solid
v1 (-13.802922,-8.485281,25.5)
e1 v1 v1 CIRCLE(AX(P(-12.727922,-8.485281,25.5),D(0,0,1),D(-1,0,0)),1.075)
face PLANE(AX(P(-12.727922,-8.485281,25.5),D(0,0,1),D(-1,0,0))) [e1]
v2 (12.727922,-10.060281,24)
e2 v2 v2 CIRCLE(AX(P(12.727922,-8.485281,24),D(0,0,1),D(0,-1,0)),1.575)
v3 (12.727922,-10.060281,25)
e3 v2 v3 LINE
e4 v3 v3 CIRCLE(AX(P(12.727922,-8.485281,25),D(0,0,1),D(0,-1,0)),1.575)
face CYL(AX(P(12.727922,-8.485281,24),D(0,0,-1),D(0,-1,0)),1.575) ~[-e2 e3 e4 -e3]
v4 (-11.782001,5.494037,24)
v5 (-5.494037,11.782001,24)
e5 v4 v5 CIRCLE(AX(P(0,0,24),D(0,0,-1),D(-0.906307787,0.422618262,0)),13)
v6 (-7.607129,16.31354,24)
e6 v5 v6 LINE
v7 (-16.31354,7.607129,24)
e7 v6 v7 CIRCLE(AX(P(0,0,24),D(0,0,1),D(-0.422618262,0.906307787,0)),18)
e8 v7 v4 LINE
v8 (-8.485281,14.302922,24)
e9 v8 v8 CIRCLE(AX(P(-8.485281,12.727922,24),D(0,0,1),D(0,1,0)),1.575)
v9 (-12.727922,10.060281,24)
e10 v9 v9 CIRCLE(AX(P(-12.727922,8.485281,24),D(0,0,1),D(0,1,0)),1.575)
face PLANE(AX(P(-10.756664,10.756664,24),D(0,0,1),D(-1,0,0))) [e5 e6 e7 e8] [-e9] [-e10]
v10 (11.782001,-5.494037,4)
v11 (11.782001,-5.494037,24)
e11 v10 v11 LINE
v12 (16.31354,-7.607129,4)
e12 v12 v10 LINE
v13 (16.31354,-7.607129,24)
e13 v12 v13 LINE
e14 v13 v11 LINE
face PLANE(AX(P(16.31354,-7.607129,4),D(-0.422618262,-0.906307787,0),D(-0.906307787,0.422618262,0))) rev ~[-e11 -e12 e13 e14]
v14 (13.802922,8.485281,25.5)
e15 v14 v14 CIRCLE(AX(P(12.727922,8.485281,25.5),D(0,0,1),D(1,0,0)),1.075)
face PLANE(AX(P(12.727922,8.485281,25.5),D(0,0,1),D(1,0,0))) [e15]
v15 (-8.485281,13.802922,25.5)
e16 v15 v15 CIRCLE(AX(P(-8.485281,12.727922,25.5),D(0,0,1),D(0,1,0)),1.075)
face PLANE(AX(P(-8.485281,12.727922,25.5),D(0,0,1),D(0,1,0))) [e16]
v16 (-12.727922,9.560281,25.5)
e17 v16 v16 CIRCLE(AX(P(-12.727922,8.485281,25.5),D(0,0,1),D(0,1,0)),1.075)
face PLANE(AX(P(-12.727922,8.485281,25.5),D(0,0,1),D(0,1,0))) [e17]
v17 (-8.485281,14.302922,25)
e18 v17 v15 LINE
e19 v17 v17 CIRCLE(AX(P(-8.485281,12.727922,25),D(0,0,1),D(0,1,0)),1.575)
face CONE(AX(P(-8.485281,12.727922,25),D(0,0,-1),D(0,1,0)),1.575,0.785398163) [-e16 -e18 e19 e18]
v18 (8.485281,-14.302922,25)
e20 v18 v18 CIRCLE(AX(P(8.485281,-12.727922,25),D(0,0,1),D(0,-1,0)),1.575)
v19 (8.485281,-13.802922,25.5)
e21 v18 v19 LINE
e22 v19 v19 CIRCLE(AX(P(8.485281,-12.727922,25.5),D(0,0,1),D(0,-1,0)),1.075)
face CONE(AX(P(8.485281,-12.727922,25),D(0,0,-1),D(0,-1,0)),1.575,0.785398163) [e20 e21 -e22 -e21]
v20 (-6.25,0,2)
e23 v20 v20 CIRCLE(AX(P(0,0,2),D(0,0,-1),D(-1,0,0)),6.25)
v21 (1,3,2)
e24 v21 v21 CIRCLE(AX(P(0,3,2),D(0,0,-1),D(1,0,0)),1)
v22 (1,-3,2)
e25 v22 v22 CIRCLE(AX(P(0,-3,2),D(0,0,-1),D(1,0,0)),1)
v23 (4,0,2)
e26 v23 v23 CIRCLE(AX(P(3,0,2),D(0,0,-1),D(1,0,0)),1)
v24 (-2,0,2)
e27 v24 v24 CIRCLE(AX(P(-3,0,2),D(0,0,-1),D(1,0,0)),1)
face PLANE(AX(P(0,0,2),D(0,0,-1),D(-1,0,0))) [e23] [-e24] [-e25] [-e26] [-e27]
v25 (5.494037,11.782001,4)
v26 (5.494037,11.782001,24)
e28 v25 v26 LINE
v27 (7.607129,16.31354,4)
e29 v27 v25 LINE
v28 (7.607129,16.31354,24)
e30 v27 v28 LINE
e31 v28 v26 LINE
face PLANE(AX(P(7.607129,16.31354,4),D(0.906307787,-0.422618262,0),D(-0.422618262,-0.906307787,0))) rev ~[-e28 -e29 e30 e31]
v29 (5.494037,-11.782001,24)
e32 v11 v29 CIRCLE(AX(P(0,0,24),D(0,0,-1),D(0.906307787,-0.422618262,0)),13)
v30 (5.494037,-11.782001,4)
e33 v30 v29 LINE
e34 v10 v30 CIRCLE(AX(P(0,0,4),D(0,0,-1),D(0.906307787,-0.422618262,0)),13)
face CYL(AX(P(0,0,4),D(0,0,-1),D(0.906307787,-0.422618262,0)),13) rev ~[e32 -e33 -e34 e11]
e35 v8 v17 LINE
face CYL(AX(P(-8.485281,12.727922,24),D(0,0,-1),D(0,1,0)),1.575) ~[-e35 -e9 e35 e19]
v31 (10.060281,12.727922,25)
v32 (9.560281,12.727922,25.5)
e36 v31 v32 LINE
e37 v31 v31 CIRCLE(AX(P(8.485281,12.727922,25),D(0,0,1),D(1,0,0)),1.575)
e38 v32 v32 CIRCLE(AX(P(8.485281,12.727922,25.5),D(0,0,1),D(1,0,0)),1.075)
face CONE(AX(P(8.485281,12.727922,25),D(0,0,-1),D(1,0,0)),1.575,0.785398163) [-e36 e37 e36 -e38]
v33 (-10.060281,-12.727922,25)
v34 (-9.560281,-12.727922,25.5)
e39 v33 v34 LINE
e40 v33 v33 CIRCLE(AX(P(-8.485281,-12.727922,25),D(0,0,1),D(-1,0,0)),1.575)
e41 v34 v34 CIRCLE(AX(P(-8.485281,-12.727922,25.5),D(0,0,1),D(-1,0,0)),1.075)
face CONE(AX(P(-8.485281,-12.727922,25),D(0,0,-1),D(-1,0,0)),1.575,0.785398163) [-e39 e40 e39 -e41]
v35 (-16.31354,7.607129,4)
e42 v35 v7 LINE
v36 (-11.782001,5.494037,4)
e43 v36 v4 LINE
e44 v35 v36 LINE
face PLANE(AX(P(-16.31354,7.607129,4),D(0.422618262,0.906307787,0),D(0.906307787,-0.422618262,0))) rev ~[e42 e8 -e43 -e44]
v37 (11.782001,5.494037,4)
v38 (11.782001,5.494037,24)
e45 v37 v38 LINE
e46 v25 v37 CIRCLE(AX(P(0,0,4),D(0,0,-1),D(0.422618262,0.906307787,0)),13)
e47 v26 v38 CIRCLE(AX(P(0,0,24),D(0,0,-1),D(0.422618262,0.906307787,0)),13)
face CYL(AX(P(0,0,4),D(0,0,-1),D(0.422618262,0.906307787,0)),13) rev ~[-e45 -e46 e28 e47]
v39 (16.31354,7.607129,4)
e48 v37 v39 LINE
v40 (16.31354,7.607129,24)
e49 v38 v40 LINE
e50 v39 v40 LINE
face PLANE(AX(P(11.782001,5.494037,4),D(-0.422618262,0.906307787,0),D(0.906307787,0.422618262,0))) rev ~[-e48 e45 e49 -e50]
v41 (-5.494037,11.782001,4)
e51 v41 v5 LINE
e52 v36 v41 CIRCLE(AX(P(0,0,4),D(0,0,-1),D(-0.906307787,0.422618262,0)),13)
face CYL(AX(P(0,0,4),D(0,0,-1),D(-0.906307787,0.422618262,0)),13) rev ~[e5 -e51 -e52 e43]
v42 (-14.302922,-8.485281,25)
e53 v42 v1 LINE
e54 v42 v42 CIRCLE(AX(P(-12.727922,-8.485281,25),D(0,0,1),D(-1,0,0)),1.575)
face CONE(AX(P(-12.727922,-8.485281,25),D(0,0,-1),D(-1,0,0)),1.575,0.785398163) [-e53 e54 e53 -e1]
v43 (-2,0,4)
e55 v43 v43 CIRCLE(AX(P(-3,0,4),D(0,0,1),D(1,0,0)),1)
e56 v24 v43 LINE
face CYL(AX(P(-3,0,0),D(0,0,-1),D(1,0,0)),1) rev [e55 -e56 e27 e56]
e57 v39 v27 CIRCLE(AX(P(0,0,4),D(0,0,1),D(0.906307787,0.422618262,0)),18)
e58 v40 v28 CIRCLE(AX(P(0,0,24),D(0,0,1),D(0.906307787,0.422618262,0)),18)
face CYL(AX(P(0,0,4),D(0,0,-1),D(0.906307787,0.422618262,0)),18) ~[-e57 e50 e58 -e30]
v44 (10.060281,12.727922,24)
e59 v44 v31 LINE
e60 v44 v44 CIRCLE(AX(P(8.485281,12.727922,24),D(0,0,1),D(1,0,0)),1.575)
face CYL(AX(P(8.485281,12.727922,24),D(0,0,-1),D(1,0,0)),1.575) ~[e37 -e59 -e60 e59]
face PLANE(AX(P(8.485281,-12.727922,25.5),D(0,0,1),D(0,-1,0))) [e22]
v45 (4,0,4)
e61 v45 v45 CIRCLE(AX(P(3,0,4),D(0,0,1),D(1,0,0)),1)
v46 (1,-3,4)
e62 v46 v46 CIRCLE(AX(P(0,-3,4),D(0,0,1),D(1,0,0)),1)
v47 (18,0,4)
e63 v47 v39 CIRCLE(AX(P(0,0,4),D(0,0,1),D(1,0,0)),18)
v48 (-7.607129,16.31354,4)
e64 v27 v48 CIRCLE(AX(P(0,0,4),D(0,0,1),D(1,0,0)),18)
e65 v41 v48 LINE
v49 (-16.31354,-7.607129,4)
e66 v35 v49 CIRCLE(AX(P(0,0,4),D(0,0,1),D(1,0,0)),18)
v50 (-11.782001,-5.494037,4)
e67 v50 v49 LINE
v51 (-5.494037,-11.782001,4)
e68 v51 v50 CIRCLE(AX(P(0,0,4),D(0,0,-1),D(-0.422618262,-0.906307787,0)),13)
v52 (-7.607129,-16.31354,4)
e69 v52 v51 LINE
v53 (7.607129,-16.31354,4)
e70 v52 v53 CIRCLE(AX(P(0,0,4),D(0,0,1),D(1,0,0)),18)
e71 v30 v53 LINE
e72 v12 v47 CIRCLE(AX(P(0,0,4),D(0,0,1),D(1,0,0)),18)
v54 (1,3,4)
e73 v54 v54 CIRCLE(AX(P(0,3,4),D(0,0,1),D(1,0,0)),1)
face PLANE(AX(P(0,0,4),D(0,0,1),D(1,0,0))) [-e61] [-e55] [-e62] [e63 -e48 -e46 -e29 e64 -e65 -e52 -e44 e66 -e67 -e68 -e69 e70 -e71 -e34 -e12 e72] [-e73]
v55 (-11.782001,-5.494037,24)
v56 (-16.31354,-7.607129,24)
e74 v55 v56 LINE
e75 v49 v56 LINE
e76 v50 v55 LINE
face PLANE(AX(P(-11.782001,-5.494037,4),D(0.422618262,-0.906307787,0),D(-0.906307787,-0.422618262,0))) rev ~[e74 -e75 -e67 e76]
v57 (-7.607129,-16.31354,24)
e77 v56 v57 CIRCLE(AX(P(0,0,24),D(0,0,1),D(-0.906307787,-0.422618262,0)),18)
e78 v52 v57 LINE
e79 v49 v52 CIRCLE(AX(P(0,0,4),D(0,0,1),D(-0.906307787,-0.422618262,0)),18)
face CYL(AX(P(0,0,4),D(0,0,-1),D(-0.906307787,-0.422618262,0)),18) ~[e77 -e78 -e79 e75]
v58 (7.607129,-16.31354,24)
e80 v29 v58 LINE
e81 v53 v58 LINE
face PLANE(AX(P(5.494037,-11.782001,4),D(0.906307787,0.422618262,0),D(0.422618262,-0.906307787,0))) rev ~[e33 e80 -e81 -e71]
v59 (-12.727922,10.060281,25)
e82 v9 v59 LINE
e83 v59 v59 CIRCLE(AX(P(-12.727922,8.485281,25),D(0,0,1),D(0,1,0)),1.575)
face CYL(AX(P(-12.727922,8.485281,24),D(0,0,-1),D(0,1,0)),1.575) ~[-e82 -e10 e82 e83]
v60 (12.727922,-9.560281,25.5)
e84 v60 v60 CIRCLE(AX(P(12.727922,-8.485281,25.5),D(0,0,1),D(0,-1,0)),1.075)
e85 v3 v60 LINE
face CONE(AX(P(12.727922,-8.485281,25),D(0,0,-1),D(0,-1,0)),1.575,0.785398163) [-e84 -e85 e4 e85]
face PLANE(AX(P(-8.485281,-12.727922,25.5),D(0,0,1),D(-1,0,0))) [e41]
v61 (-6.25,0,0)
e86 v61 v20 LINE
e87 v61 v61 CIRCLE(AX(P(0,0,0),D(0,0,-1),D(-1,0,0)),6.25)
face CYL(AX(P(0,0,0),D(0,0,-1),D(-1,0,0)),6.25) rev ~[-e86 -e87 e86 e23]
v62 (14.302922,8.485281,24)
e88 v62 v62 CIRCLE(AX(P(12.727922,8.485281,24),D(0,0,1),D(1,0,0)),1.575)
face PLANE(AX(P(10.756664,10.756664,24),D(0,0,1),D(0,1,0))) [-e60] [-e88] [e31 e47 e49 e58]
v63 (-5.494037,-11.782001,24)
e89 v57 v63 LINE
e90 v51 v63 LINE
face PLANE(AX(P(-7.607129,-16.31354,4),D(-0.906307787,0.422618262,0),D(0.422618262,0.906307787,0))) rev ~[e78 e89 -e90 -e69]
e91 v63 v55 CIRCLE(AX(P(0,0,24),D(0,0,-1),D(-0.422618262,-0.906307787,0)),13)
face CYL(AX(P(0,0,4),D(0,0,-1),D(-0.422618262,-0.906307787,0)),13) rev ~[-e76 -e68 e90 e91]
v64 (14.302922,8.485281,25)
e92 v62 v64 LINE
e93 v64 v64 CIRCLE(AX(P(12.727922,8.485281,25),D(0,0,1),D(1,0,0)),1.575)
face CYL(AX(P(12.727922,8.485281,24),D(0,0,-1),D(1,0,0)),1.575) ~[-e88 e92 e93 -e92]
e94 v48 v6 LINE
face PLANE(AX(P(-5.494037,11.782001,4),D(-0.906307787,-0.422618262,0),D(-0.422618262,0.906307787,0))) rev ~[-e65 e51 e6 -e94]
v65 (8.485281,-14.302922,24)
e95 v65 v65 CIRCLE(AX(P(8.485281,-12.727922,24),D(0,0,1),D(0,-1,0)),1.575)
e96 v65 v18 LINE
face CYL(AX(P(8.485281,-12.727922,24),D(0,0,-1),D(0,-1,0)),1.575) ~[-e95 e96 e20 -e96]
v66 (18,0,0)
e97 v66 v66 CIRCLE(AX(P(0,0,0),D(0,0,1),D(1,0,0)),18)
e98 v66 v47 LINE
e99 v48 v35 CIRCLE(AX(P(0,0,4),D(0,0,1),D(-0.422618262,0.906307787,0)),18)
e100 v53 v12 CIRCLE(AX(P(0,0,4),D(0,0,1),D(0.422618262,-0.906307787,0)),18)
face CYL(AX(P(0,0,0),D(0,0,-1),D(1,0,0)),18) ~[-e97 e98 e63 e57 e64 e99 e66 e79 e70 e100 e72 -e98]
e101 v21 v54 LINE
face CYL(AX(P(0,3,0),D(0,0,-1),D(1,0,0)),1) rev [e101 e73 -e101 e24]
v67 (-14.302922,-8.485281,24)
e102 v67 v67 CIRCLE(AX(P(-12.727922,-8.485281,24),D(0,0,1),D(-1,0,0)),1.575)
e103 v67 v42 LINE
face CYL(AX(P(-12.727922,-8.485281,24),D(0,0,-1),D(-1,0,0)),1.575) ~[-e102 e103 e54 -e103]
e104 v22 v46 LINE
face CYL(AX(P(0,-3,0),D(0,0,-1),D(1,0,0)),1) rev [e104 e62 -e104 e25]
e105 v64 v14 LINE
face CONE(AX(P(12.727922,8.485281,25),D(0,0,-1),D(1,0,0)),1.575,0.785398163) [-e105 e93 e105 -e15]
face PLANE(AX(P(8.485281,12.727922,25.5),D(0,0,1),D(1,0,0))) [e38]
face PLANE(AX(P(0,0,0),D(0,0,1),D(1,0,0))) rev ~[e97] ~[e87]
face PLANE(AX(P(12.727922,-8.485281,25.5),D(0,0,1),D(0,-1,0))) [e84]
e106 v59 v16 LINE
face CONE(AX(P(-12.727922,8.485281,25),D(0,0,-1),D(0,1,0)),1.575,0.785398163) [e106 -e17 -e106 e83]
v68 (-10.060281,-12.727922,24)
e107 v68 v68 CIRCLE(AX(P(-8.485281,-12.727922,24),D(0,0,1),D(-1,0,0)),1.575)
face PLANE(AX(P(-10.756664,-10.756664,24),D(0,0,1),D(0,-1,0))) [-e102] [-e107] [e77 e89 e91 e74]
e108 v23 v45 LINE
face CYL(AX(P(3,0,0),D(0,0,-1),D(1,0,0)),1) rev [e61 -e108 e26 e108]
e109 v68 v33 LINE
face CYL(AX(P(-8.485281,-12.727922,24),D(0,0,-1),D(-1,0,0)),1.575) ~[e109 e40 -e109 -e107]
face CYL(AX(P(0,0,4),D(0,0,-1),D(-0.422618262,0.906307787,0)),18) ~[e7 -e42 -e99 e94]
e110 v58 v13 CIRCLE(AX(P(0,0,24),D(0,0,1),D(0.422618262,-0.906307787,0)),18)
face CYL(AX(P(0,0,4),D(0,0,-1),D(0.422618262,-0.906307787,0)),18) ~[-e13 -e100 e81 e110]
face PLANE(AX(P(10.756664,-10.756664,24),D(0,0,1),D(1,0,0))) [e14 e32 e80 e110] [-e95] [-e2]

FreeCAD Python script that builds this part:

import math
import FreeCAD as App
import Part
import Sketcher
from FreeCAD import Vector
Q = App.Units.Quantity


def edges_at(feature, points):
    """Names of the edges that pass closest to the given points."""
    edges = feature.Shape.Edges
    near = lambda p: min(range(len(edges)), key=lambda i: edges[i].distToShape(Part.Vertex(*p))[0])
    return sorted({f"Edge{near(p) + 1}" for p in points})

doc = App.newDocument("Part")
body = doc.addObject("PartDesign::Body", "Body")

sketch1 = body.newObject("Sketcher::SketchObject", "Sketch")
sketch1.AttachmentSupport = (doc.getObject("XY_Plane"), [""])
sketch1.MapMode = "FlatFace"
sketch1.addGeometry([
    Part.Circle(Vector(0, 0, 0), Vector(0, 0, 1), 18),
    Part.Circle(Vector(-3, 0, 0), Vector(0, 0, 1), 1),
    Part.Circle(Vector(0, -3, 0), Vector(0, 0, 1), 1),
    Part.Circle(Vector(3, 0, 0), Vector(0, 0, 1), 1),
    Part.Circle(Vector(0, 3, 0), Vector(0, 0, 1), 1),
], False)
sketch1.addConstraint([
    Sketcher.Constraint("Coincident", 0, 3, -1, 1),
    Sketcher.Constraint("Equal", 1, 2),
    Sketcher.Constraint("Equal", 2, 3),
    Sketcher.Constraint("Equal", 3, 4),
    Sketcher.Constraint("Symmetric", 1, 3, 3, 3, -1, 1),
    Sketcher.Constraint("Symmetric", 2, 3, 4, 3, -1, 1),
    Sketcher.Constraint("PointOnObject", 1, 3, -1),
    Sketcher.Constraint("PointOnObject", 2, 3, -2),
    Sketcher.Constraint("Diameter", 0, 36.0),
    Sketcher.Constraint("Diameter", 1, 2.0),
    Sketcher.Constraint("DistanceX", 1, 3, -1, 1, 3.0),
    Sketcher.Constraint("DistanceY", 2, 3, -1, 1, 3.0),
])
pad1 = body.newObject("PartDesign::Pad", "Pad")
pad1.Profile = sketch1
pad1.Length = 4

sketch2 = body.newObject("Sketcher::SketchObject", "Sketch001")
sketch2.AttachmentSupport = (doc.getObject("XY_Plane"), [""])
sketch2.MapMode = "FlatFace"
sketch2.AttachmentOffset = App.Placement(Vector(0, 0, 4), App.Rotation())
sketch2.addGeometry([
    Part.LineSegment(Vector(16, -8, 0), Vector(12, -5, 0)),
    Part.ArcOfCircle(Part.Circle(Vector(0, 0, 0), Vector(0, 0, 1), 13), math.radians(-65), math.radians(-25)),
    Part.LineSegment(Vector(5, -12, 0), Vector(8, -16, 0)),
    Part.ArcOfCircle(Part.Circle(Vector(0, 0, 0), Vector(0, 0, 1), 18), math.radians(-65), math.radians(-25)),
], False)
sketch2.addConstraint([
    Sketcher.Constraint("Coincident", 0, 2, 1, 2),
    Sketcher.Constraint("Coincident", 1, 1, 2, 1),
    Sketcher.Constraint("Coincident", 2, 2, 3, 1),
    Sketcher.Constraint("Coincident", 3, 2, 0, 1),
    Sketcher.Constraint("Coincident", 1, 3, -1, 1),
    Sketcher.Constraint("Coincident", 3, 3, -1, 1),
    Sketcher.Constraint("Radius", 1, 13.0),
    Sketcher.Constraint("Radius", 3, 18.0),
    Sketcher.Constraint("Angle", 0, Q("155 deg")),
    Sketcher.Constraint("Angle", 2, Q("-65 deg")),
    Sketcher.Constraint("DistanceX", -1, 1, 0, 2, 11.782001),
    Sketcher.Constraint("DistanceY", 1, 1, -1, 1, 11.782001),
])
pad2 = body.newObject("PartDesign::Pad", "Pad001")
pad2.Profile = sketch2
pad2.Length = 20
doc.recompute()

polarpattern = body.newObject("PartDesign::PolarPattern", "PolarPattern")
polarpattern.Originals = [pad2]
polarpattern.Axis = (doc.getObject("Z_Axis"), [""])
polarpattern.Angle = 360
polarpattern.Occurrences = 4
body.Tip = polarpattern

sketch3 = body.newObject("Sketcher::SketchObject", "Sketch002")
sketch3.AttachmentSupport = (doc.getObject("XY_Plane"), [""])
sketch3.MapMode = "FlatFace"
sketch3.AttachmentOffset = App.Placement(Vector(0, 0, 24), App.Rotation())
sketch3.addGeometry([
    Part.Circle(Vector(8.5, 12.7, 0), Vector(0, 0, 1), 1.6),
    Part.Circle(Vector(12.7, 8.5, 0), Vector(0, 0, 1), 1.6),
], False)
sketch3.addConstraint([
    Sketcher.Constraint("Equal", 0, 1),
    Sketcher.Constraint("Diameter", 0, 3.15),
    Sketcher.Constraint("DistanceX", -1, 1, 0, 3, 8.485281),
    Sketcher.Constraint("DistanceY", -1, 1, 1, 3, 8.485281),
    Sketcher.Constraint("DistanceX", 0, 3, 1, 3, 4.242641),
    Sketcher.Constraint("DistanceY", 1, 3, 0, 3, 4.242641),
])
pad3 = body.newObject("PartDesign::Pad", "Pad002")
pad3.Profile = sketch3
pad3.Length = 1.5
doc.recompute()

polarpattern2 = body.newObject("PartDesign::PolarPattern", "PolarPattern001")
polarpattern2.Originals = [pad3]
polarpattern2.Axis = (doc.getObject("Z_Axis"), [""])
polarpattern2.Angle = 360
polarpattern2.Occurrences = 4
body.Tip = polarpattern2

sketch4 = body.newObject("Sketcher::SketchObject", "Sketch003")
sketch4.AttachmentSupport = (doc.getObject("XY_Plane"), [""])
sketch4.MapMode = "FlatFace"
sketch4.addGeometry(Part.Circle(Vector(0, 0, 0), Vector(0, 0, 1), 6), False)
sketch4.addConstraint([
    Sketcher.Constraint("Coincident", 0, 3, -1, 1),
    Sketcher.Constraint("Diameter", 0, 12.5),
])
pocket1 = body.newObject("PartDesign::Pocket", "Pocket")
pocket1.Profile = sketch4
pocket1.Length = 2
pocket1.Reversed = True
doc.recompute()

chamfer = body.newObject("PartDesign::Chamfer", "Chamfer")
chamfer.Base = (pocket1, edges_at(pocket1, [
    (6.91, 12.728, 25.5),
    (11.153, 8.485, 25.5),
    (12.728, -6.91, 25.5),
    (8.485, -11.153, 25.5),
    (-6.91, -12.728, 25.5),
    (-11.153, -8.485, 25.5),
    (-12.728, 6.91, 25.5),
    (-8.485, 11.153, 25.5),
]))
chamfer.Size = 0.5

doc.recompute()
